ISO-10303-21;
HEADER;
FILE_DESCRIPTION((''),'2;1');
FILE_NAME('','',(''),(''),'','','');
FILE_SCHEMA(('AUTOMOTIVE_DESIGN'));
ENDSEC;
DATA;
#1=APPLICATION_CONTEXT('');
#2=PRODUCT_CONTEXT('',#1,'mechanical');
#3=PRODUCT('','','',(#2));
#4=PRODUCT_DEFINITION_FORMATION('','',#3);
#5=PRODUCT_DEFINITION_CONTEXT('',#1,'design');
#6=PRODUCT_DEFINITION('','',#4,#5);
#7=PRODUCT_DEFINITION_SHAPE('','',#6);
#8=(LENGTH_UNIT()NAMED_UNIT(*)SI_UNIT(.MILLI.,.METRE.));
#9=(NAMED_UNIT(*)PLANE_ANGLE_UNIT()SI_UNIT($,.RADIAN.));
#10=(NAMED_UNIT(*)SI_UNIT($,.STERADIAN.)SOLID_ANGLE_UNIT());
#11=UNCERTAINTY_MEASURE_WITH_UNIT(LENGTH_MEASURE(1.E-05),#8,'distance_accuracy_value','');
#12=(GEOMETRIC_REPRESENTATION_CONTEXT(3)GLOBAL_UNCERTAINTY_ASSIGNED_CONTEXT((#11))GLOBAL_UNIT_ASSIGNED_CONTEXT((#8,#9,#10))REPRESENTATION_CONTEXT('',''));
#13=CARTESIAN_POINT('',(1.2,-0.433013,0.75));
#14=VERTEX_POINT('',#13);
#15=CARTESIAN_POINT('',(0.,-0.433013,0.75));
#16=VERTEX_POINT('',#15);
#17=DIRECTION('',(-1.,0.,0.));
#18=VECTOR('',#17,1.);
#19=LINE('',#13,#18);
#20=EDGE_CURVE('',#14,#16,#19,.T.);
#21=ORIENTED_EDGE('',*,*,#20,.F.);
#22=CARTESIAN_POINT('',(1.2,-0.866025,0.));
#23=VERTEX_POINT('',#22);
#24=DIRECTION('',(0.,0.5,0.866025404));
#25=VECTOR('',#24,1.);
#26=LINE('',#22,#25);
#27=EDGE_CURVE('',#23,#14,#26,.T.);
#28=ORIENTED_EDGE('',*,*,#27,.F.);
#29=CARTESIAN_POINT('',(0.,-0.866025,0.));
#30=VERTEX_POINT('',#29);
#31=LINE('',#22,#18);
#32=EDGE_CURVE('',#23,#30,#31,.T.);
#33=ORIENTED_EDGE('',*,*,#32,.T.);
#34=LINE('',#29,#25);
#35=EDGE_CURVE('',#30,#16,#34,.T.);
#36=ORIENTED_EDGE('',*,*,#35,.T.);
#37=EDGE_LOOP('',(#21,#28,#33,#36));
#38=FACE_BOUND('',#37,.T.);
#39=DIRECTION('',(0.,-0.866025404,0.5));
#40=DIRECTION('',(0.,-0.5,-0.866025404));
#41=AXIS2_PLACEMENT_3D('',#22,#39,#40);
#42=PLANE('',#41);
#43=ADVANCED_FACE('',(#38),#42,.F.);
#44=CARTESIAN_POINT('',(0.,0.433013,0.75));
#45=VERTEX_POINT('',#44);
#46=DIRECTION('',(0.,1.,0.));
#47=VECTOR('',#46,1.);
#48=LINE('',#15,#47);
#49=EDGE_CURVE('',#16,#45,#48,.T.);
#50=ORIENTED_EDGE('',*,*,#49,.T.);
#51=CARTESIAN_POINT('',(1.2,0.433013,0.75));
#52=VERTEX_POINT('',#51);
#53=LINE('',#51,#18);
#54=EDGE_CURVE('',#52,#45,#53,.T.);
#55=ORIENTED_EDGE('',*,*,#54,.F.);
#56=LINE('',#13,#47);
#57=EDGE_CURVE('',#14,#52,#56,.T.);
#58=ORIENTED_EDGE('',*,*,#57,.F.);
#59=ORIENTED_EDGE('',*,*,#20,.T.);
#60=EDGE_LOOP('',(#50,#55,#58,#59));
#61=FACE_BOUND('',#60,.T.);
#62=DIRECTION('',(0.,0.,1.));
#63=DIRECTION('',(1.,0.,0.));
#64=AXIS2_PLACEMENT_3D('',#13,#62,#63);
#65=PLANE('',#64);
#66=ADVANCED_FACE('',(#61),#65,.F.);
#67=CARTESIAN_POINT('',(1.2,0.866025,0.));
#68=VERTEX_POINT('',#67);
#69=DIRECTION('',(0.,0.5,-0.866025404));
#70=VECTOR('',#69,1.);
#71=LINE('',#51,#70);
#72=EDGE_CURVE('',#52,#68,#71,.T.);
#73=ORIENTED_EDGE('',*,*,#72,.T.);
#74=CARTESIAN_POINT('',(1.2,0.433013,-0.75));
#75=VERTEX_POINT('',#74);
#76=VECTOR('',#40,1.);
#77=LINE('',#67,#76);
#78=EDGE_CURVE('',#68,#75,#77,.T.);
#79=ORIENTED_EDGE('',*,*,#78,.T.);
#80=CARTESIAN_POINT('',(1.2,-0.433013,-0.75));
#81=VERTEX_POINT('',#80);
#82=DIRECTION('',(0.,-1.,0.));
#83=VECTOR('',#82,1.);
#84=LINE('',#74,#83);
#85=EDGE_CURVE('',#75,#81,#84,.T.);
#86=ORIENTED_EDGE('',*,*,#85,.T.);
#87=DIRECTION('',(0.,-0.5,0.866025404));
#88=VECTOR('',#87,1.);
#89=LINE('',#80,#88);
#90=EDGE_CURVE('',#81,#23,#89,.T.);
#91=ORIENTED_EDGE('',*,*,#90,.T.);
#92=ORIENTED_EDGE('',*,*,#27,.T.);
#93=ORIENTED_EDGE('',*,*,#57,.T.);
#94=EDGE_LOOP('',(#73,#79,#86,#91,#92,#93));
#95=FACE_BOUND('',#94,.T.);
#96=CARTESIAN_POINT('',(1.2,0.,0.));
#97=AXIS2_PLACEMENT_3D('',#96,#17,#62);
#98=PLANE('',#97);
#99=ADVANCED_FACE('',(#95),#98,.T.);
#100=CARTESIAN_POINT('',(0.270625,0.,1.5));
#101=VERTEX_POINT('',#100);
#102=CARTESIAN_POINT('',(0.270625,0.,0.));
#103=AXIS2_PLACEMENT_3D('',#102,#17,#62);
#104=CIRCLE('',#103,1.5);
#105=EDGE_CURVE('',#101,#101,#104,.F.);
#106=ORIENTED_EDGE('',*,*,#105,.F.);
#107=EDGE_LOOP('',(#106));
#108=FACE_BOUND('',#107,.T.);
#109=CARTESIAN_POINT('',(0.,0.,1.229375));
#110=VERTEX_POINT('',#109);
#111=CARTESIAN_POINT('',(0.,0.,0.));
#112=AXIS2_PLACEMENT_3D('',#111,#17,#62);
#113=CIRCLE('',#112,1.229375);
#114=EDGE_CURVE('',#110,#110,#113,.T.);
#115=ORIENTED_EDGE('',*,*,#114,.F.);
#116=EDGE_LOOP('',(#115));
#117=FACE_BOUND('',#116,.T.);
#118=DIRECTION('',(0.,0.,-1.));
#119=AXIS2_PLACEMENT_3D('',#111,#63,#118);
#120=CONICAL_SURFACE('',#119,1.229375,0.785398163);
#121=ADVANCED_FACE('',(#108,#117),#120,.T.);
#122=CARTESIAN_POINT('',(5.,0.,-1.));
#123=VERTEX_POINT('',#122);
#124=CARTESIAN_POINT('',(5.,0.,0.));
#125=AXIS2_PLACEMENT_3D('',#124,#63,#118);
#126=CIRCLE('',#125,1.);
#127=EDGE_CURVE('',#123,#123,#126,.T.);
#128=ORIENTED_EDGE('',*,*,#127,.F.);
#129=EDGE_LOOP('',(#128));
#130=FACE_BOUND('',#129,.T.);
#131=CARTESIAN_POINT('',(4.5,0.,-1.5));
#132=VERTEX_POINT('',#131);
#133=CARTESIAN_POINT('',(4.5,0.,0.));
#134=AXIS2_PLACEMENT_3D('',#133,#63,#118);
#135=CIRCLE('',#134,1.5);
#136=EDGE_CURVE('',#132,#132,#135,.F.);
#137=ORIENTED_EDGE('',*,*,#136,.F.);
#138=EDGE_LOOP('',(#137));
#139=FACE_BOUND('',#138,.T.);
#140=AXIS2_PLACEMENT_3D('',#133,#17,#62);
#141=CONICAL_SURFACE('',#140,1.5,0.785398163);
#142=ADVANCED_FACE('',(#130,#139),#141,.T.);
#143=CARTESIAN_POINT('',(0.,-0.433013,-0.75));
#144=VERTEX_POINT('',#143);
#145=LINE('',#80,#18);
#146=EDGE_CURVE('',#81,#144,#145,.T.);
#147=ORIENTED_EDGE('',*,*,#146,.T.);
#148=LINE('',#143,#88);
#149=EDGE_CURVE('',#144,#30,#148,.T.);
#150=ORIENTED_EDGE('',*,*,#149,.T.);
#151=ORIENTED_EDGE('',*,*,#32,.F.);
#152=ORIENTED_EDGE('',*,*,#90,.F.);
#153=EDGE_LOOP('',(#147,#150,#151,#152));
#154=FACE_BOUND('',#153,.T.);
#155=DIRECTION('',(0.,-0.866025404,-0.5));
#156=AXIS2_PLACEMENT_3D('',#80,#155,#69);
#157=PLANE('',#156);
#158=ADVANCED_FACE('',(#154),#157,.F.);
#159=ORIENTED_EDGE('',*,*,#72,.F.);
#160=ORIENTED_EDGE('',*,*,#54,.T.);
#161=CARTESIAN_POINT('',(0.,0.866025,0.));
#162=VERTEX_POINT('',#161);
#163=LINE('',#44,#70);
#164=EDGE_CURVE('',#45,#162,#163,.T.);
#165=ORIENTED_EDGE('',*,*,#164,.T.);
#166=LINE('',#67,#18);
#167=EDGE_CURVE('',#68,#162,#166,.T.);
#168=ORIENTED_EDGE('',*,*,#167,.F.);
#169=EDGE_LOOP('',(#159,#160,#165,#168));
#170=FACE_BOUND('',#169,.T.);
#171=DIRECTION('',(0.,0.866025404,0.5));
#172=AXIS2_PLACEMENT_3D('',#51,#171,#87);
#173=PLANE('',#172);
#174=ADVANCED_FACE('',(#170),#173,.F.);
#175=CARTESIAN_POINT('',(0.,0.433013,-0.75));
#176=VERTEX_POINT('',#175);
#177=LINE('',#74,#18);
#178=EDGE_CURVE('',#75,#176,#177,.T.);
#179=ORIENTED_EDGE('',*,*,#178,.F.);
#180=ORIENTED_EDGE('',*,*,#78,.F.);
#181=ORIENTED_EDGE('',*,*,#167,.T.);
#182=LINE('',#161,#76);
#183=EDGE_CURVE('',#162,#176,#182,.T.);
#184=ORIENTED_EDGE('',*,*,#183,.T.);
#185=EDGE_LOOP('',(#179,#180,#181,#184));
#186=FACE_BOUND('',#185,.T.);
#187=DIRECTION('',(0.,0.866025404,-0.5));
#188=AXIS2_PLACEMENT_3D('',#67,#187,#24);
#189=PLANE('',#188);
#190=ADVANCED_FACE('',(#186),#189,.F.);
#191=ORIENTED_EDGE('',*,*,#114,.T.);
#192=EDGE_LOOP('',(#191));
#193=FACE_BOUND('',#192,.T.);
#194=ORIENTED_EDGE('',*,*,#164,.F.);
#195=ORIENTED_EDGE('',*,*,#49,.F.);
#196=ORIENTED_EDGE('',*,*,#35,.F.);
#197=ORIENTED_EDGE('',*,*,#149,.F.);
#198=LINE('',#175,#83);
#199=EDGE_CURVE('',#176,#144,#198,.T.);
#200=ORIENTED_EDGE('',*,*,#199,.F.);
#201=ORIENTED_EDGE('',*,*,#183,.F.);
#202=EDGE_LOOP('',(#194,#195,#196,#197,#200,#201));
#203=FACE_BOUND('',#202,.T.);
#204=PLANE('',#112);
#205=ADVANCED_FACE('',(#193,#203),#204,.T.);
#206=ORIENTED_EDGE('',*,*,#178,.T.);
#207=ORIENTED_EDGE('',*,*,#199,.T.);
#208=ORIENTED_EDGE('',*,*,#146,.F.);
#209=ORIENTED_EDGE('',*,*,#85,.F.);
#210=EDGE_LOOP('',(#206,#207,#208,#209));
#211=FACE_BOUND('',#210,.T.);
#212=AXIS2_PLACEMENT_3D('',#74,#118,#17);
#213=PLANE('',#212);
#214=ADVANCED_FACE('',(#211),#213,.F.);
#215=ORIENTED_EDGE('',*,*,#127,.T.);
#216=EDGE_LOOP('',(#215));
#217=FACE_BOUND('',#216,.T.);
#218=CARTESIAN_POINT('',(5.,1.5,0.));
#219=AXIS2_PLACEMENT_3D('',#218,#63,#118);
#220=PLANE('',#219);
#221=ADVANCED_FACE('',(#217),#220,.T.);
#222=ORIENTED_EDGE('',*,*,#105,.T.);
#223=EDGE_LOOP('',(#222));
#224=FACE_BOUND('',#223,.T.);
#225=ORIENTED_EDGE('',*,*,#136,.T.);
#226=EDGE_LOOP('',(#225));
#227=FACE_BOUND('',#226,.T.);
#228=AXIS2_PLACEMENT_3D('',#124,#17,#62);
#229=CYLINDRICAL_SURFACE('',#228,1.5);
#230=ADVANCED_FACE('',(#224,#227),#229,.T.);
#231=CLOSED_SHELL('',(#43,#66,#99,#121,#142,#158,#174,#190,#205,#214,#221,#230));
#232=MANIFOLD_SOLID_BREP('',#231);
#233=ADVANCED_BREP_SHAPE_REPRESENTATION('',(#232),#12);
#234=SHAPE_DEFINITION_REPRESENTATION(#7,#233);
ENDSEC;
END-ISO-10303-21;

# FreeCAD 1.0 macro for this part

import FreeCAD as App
import Part
import Sketcher
from FreeCAD import Vector
Q = App.Units.Quantity


def edges_at(feature, points):
    """Names of the edges that pass closest to the given points."""
    edges = feature.Shape.Edges
    near = lambda p: min(range(len(edges)), key=lambda i: edges[i].distToShape(Part.Vertex(*p))[0])
    return sorted({f"Edge{near(p) + 1}" for p in points})


def add_polygon(sketch, points):
    """Adds a closed chain of lines whose ends are joined by coincident constraints."""
    first, n = sketch.GeometryCount, len(points)
    for a, b in zip(points, points[1:] + points[:1]):
        sketch.addGeometry(Part.LineSegment(App.Vector(*a, 0), App.Vector(*b, 0)), False)
    for i in range(n):
        sketch.addConstraint(Sketcher.Constraint("Coincident", first + i, 2, first + (i + 1) % n, 1))

doc = App.newDocument("Part")
params = doc.addObject("Spreadsheet::Sheet", "Params")
for row, (alias, value) in enumerate([
    ("sketch1_width", "5 mm"),
    ("sketch1_height", "1.5 mm"),
    ("revolution_angle", "360 deg"),
    ("pocket1_length", "1.2 mm"),
    ("chamfer_size", "0.270625 mm"),
    ("chamfer2_size", "0.5 mm"),
], start=1):
    params.set(f"A{row}", alias)
    params.set(f"B{row}", "=" + value)
    params.setAlias(f"B{row}", alias)

body = doc.addObject("PartDesign::Body", "Body")

sketch1 = body.newObject("Sketcher::SketchObject", "Sketch")
sketch1.AttachmentSupport = (doc.getObject("XY_Plane"), [""])
sketch1.MapMode = "FlatFace"
add_polygon(sketch1, [(5, 1.5), (5, 0), (0, 0), (0, 1.5)])
sketch1.addConstraint(Sketcher.Constraint("Vertical", 0))
sketch1.addConstraint(Sketcher.Constraint("Horizontal", 1))
sketch1.addConstraint(Sketcher.Constraint("Vertical", 2))
sketch1.addConstraint(Sketcher.Constraint("Horizontal", 3))
sketch1.addConstraint(Sketcher.Constraint("Coincident", 1, 2, -1, 1))
sketch1.addConstraint(Sketcher.Constraint("DistanceX", 1, 2, 1, 1, 5.0))
sketch1.addConstraint(Sketcher.Constraint("DistanceY", 0, 2, 0, 1, 1.5))
sketch1.setExpression("Constraints[9]", "Params.sketch1_width")
sketch1.setExpression("Constraints[10]", "Params.sketch1_height")
revolution = body.newObject("PartDesign::Revolution", "Revolution")
revolution.Profile = sketch1
revolution.ReferenceAxis = (sketch1, ["H_Axis"])
revolution.setExpression("Angle", "Params.revolution_angle")

sketch2 = body.newObject("Sketcher::SketchObject", "Sketch001")
sketch2.AttachmentSupport = (doc.getObject("YZ_Plane"), [""])
sketch2.MapMode = "FlatFace"
add_polygon(sketch2, [(-0.433013, -0.75), (-0.866025, 0), (-0.433013, 0.75), (0.433013, 0.75), (0.866025, 0), (0.433013, -0.75)])
sketch2.addConstraint(Sketcher.Constraint("Horizontal", 2))
sketch2.addConstraint(Sketcher.Constraint("Horizontal", 5))
sketch2.addConstraint(Sketcher.Constraint("Symmetric", 0, 2, 3, 2, -1, 1))
sketch2.addConstraint(Sketcher.Constraint("Symmetric", 1, 2, 4, 2, -1, 1))
sketch2.addConstraint(Sketcher.Constraint("PointOnObject", 0, 2, -1))
sketch2.addConstraint(Sketcher.Constraint("Parallel", 0, 3))
sketch2.addConstraint(Sketcher.Constraint("Vertical", 2, 2, 4, 2))
sketch2.addConstraint(Sketcher.Constraint("Angle", 0, Q("120 deg")))
sketch2.addConstraint(Sketcher.Constraint("DistanceY", 4, 2, 2, 2, 1.5))
sketch2.addConstraint(Sketcher.Constraint("DistanceX", 2, 1, 2, 2, 0.866025))
pocket1 = body.newObject("PartDesign::Pocket", "Pocket")
pocket1.Profile = sketch2
pocket1.setExpression("Length", "Params.pocket1_length")
pocket1.Reversed = True
doc.recompute()

chamfer = body.newObject("PartDesign::Chamfer", "Chamfer")
chamfer.Base = (pocket1, edges_at(pocket1, [(0, 0, -1.5)]))
chamfer.setExpression("Size", "Params.chamfer_size")
doc.recompute()

chamfer2 = body.newObject("PartDesign::Chamfer", "Chamfer001")
chamfer2.Base = (chamfer, edges_at(chamfer, [(5, 0, -1.5)]))
chamfer2.setExpression("Size", "Params.chamfer2_size")

doc.recompute()
